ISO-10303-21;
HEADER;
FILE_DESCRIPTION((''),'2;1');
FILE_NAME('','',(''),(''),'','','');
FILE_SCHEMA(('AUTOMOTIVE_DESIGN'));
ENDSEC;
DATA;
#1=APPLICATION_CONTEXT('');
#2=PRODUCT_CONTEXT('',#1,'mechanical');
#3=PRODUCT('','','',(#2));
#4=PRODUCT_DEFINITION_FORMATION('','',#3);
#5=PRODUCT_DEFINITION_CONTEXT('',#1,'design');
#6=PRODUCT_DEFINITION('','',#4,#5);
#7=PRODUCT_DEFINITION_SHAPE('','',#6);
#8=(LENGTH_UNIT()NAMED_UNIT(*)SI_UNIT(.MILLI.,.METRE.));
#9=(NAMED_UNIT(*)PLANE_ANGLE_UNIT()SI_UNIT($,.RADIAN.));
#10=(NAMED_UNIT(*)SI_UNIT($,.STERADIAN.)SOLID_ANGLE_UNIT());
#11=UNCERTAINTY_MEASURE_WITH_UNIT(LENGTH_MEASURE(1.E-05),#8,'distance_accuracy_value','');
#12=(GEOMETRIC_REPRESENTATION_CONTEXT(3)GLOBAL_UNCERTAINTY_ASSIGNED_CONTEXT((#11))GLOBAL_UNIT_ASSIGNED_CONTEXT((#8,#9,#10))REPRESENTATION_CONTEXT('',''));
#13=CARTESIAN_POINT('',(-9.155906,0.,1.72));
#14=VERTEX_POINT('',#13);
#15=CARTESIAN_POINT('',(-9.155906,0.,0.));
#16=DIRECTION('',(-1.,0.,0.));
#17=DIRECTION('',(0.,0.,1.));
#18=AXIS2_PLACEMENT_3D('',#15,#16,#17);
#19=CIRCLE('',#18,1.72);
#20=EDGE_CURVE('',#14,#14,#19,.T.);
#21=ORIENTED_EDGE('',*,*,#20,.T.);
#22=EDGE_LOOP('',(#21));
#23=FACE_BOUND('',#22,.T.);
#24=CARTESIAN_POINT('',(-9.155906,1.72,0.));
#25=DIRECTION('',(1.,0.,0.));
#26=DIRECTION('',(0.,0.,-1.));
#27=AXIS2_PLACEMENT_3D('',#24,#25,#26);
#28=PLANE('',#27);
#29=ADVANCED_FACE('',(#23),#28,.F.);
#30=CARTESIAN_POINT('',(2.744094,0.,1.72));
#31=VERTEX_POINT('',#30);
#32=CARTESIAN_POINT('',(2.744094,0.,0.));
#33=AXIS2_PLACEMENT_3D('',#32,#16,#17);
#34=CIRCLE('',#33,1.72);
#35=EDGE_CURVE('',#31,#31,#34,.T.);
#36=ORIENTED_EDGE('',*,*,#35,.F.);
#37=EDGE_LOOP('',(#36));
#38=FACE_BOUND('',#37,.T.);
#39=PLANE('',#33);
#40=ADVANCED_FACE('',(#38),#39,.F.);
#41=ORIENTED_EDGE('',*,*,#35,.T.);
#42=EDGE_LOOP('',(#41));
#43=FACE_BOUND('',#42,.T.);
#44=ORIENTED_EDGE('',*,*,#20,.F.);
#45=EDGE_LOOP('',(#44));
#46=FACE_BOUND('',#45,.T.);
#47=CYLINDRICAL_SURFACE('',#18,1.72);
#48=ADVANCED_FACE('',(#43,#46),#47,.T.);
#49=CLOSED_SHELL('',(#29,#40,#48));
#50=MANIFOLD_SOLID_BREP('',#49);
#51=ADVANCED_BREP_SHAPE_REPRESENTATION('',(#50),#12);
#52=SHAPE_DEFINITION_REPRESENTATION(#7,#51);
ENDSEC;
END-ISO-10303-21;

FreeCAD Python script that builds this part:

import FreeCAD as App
import Part
import Sketcher
from FreeCAD import Vector


def add_polygon(sketch, points):
    """Adds a closed chain of lines whose ends are joined by coincident constraints."""
    first, n = sketch.GeometryCount, len(points)
    for a, b in zip(points, points[1:] + points[:1]):
        sketch.addGeometry(Part.LineSegment(App.Vector(*a, 0), App.Vector(*b, 0)), False)
    for i in range(n):
        sketch.addConstraint(Sketcher.Constraint("Coincident", first + i, 2, first + (i + 1) % n, 1))

doc = App.newDocument("Part")
body = doc.addObject("PartDesign::Body", "Body")

# Sketch on XY plane
sketch1 = body.newObject("Sketcher::SketchObject", "Sketch")
sketch1.AttachmentSupport = (doc.getObject("XY_Plane"), [""])
sketch1.MapMode = "FlatFace"
add_polygon(sketch1, [(-9.2, 1.7), (-9.2, 0), (2.7, 0), (2.7, 1.7)])  # lines 0-3
sketch1.addConstraint(Sketcher.Constraint("Vertical", 0))
sketch1.addConstraint(Sketcher.Constraint("Horizontal", 1))
sketch1.addConstraint(Sketcher.Constraint("Vertical", 2))
sketch1.addConstraint(Sketcher.Constraint("Horizontal", 3))
sketch1.addConstraint(Sketcher.Constraint("PointOnObject", 0, 2, -1))
sketch1.addConstraint(Sketcher.Constraint("DistanceX", 1, 1, 1, 2, 11.9))
sketch1.addConstraint(Sketcher.Constraint("DistanceY", 0, 2, 0, 1, 1.72))
sketch1.addConstraint(Sketcher.Constraint("DistanceX", 0, 2, -1, 1, 9.155906))
revolution = body.newObject("PartDesign::Revolution", "Revolution")
revolution.Profile = sketch1
revolution.ReferenceAxis = (sketch1, ["H_Axis"])
revolution.Angle = 360

doc.recompute()
